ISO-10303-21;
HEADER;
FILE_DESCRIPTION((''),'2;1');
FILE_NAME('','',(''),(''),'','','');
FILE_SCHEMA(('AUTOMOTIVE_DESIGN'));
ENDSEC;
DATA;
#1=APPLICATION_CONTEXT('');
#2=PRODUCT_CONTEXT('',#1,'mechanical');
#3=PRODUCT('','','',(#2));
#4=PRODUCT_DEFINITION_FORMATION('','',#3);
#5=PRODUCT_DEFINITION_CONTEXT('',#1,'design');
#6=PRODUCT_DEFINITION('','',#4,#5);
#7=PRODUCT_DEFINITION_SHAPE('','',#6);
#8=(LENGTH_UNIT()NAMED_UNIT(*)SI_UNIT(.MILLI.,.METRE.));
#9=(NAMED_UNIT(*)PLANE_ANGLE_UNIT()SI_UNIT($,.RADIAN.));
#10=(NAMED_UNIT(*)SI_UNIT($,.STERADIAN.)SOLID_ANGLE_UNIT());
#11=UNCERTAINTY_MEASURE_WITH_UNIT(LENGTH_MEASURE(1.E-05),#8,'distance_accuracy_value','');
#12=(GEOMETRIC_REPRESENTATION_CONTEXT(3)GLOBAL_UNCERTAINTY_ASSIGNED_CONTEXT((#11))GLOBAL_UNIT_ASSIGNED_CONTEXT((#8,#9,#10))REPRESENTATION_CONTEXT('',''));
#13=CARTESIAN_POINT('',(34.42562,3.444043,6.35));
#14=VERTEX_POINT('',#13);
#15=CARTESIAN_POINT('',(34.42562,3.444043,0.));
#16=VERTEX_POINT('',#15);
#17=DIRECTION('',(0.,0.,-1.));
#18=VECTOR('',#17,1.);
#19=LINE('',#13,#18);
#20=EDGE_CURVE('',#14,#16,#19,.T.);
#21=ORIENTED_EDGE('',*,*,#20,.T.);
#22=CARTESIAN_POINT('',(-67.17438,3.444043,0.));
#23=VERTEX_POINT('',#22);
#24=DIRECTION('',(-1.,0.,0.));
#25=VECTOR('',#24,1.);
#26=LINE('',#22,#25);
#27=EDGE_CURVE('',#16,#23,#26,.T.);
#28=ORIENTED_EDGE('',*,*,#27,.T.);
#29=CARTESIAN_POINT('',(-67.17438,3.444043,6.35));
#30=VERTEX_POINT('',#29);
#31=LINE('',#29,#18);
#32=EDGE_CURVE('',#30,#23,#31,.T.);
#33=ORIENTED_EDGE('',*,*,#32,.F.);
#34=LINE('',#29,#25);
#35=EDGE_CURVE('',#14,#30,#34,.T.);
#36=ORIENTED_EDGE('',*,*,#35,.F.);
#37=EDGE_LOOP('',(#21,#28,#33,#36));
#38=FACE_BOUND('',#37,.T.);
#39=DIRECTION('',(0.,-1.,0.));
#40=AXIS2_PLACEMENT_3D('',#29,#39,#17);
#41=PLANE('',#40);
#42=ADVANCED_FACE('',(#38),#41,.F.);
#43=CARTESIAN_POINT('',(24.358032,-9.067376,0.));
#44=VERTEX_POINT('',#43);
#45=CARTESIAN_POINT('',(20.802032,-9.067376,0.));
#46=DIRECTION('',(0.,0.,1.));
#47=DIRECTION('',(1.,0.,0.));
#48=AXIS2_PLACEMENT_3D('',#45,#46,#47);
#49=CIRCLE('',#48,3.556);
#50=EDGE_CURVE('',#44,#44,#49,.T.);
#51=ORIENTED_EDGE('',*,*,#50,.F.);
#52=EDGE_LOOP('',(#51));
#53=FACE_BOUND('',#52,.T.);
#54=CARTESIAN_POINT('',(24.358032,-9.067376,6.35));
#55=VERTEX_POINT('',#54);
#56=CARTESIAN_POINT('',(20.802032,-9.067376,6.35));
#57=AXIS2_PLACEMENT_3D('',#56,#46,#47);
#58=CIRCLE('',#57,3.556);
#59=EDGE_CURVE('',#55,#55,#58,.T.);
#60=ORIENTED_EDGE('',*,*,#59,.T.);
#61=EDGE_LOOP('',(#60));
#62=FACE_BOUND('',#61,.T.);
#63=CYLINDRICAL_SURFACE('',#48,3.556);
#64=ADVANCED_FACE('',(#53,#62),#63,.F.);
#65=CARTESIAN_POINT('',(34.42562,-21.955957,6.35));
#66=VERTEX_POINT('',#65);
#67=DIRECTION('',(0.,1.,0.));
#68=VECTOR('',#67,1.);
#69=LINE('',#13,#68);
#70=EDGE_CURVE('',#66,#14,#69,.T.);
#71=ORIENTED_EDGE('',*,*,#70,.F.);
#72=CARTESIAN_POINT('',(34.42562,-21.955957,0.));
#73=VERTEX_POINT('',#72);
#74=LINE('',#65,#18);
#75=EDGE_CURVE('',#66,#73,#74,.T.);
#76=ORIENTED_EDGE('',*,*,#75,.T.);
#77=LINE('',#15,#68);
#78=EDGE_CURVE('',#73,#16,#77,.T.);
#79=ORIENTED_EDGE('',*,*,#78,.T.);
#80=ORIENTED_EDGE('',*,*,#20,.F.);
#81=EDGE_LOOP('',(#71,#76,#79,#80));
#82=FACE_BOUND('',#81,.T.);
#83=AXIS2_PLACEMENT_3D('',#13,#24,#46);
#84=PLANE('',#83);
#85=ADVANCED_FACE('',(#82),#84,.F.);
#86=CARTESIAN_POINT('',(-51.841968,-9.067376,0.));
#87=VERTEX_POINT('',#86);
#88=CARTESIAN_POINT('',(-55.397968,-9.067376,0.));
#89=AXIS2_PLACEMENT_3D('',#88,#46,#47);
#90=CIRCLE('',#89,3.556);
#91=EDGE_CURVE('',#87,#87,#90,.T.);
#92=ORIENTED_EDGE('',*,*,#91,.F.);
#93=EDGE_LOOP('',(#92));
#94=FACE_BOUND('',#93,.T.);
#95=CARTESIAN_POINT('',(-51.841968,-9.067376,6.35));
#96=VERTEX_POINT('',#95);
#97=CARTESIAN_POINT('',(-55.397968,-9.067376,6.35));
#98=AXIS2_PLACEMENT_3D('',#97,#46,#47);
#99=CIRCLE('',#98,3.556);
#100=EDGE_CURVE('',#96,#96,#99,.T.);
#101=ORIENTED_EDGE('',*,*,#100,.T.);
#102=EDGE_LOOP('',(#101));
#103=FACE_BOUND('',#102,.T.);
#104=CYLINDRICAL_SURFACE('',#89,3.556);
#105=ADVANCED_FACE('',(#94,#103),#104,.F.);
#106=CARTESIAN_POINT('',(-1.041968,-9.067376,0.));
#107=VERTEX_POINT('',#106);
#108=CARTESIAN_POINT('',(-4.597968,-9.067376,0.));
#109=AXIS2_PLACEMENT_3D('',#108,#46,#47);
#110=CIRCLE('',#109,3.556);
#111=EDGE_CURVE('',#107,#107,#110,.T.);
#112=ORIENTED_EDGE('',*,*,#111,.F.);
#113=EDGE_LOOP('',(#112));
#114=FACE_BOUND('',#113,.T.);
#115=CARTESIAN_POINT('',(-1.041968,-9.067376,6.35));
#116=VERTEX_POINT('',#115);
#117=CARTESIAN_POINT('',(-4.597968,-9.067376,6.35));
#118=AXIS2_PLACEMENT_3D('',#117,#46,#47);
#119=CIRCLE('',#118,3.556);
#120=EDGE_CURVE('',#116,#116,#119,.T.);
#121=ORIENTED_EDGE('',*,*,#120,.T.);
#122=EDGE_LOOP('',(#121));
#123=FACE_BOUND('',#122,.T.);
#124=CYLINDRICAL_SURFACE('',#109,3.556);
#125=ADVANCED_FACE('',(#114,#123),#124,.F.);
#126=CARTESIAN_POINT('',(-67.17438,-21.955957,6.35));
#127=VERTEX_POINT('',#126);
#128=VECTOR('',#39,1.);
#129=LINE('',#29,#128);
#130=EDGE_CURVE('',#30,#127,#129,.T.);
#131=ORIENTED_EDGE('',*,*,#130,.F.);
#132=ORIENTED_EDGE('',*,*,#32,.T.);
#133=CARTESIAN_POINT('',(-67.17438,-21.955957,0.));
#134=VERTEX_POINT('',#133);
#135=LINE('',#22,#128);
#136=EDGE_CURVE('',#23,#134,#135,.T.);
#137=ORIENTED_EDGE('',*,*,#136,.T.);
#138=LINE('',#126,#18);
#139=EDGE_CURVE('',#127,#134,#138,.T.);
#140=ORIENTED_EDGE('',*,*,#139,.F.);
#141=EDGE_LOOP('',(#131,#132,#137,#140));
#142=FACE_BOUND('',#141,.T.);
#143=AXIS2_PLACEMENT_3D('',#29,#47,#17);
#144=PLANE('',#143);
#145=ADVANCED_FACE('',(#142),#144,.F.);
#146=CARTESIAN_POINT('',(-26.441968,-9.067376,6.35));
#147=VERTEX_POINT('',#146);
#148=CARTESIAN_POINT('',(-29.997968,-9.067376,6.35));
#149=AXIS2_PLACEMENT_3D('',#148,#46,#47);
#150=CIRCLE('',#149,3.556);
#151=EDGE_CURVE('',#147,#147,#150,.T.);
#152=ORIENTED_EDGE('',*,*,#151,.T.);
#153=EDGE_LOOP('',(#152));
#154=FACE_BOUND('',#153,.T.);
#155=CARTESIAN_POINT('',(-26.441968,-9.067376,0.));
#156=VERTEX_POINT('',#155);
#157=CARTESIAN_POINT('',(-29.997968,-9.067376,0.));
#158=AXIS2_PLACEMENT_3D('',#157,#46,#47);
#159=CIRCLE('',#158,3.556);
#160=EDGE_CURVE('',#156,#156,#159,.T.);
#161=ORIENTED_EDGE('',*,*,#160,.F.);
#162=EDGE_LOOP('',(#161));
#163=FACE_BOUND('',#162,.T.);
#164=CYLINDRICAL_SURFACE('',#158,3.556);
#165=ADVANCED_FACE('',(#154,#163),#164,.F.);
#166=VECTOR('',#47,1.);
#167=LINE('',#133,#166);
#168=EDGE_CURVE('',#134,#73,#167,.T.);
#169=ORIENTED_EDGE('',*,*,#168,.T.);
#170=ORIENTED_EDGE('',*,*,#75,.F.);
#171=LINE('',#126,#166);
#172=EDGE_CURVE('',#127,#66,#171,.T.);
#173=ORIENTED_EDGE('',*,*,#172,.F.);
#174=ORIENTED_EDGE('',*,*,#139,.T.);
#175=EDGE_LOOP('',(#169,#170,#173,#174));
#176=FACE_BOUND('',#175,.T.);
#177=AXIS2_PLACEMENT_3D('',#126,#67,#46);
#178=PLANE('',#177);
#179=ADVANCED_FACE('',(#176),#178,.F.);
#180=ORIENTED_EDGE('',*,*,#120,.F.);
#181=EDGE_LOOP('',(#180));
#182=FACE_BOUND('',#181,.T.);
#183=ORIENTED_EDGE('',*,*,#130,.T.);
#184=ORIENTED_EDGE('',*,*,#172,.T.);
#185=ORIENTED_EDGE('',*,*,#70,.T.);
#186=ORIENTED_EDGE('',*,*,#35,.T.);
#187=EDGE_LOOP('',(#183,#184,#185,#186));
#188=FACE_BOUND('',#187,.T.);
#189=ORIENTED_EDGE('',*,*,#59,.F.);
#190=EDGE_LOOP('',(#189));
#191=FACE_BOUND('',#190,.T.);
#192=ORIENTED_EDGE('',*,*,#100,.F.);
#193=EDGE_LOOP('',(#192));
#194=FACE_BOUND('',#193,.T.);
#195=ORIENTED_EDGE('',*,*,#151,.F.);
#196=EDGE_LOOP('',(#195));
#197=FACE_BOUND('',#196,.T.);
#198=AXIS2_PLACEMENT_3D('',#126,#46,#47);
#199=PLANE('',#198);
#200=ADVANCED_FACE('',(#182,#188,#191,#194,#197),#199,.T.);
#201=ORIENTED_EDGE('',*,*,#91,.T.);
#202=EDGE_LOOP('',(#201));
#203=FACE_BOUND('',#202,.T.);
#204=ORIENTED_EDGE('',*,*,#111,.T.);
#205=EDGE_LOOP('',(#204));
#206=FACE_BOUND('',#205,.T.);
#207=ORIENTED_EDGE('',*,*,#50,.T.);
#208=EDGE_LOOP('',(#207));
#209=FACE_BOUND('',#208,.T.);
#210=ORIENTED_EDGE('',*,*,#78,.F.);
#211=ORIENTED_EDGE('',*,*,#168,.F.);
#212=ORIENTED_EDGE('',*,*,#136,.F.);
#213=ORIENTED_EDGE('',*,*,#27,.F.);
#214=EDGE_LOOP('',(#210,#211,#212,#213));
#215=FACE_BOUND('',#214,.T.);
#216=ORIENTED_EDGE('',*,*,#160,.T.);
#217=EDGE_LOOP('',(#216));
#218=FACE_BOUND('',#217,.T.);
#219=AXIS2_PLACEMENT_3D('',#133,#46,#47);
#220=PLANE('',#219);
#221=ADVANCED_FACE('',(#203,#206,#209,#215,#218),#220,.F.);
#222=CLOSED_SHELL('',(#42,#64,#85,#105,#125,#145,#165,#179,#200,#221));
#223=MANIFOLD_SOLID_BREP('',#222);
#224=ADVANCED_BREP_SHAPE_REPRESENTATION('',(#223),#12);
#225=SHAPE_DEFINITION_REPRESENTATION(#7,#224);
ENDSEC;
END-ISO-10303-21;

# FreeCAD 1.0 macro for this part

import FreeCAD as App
import Part
import Sketcher
Q = App.Units.Quantity

doc = App.newDocument("Part")
body = doc.addObject("PartDesign::Body", "Body")

sketch1 = body.newObject("Sketcher::SketchObject", "Sketch")
sketch1.AttachmentSupport = (doc.getObject("XY_Plane"), [""])
sketch1.MapMode = "FlatFace"
sketch1.addGeometry([
    Part.LineSegment(App.Vector(-67, 3, 0), App.Vector(-67, -22, 0)),
    Part.LineSegment(App.Vector(-67, -22, 0), App.Vector(34, -22, 0)),
    Part.LineSegment(App.Vector(34, -22, 0), App.Vector(34, 3, 0)),
    Part.LineSegment(App.Vector(34, 3, 0), App.Vector(-67, 3, 0)),
], False)
sketch1.addConstraint([
    Sketcher.Constraint("Coincident", 0, 2, 1, 1),
    Sketcher.Constraint("Coincident", 1, 2, 2, 1),
    Sketcher.Constraint("Coincident", 2, 2, 3, 1),
    Sketcher.Constraint("Coincident", 3, 2, 0, 1),
    Sketcher.Constraint("Vertical", 0),
    Sketcher.Constraint("Horizontal", 1),
    Sketcher.Constraint("Vertical", 2),
    Sketcher.Constraint("Horizontal", 3),
    Sketcher.Constraint("DistanceX", 1, 1, 1, 2, Q("4 in")),
    Sketcher.Constraint("DistanceY", 0, 2, 0, 1, Q("1 in")),
    Sketcher.Constraint("DistanceX", 0, 2, -1, 1, Q("67.17438 mm")),
    Sketcher.Constraint("DistanceY", 0, 2, -1, 1, Q("21.955957 mm")),
])
pad1 = body.newObject("PartDesign::Pad", "Pad")
pad1.Profile = sketch1
pad1.Length = Q("0.25 in")

sketch2 = body.newObject("Sketcher::SketchObject", "Sketch001")
sketch2.AttachmentSupport = (doc.getObject("XY_Plane"), [""])
sketch2.MapMode = "FlatFace"
sketch2.AttachmentOffset = App.Placement(App.Vector(0, 0, 0.25 * 25.4), App.Rotation())
sketch2.addGeometry([
    Part.Circle(App.Vector(-55.4, -9.1, 0), App.Vector(0, 0, 1), 3.6),
    Part.Circle(App.Vector(-30, -9.1, 0), App.Vector(0, 0, 1), 3.6),
    Part.Circle(App.Vector(-4.6, -9.1, 0), App.Vector(0, 0, 1), 3.6),
    Part.Circle(App.Vector(20.8, -9.1, 0), App.Vector(0, 0, 1), 3.6),
], False)
sketch2.addConstraint([
    Sketcher.Constraint("Equal", 0, 1),
    Sketcher.Constraint("Equal", 1, 2),
    Sketcher.Constraint("Equal", 2, 3),
    Sketcher.Constraint("Horizontal", 0, 3, 1, 3),
    Sketcher.Constraint("Horizontal", 1, 3, 2, 3),
    Sketcher.Constraint("Horizontal", 2, 3, 3, 3),
    Sketcher.Constraint("Diameter", 0, Q("0.28 in")),
    Sketcher.Constraint("DistanceX", 0, 3, 1, 3, Q("1 in")),
    Sketcher.Constraint("DistanceX", 1, 3, 2, 3, Q("1 in")),
    Sketcher.Constraint("DistanceX", 2, 3, 3, 3, Q("1 in")),
    Sketcher.Constraint("DistanceX", 0, 3, -1, 1, Q("55.397968 mm")),
    Sketcher.Constraint("DistanceY", 0, 3, -1, 1, Q("9.067376 mm")),
])
pocket1 = body.newObject("PartDesign::Pocket", "Pocket")
pocket1.Profile = sketch2
pocket1.Type = "ThroughAll"

doc.recompute()
